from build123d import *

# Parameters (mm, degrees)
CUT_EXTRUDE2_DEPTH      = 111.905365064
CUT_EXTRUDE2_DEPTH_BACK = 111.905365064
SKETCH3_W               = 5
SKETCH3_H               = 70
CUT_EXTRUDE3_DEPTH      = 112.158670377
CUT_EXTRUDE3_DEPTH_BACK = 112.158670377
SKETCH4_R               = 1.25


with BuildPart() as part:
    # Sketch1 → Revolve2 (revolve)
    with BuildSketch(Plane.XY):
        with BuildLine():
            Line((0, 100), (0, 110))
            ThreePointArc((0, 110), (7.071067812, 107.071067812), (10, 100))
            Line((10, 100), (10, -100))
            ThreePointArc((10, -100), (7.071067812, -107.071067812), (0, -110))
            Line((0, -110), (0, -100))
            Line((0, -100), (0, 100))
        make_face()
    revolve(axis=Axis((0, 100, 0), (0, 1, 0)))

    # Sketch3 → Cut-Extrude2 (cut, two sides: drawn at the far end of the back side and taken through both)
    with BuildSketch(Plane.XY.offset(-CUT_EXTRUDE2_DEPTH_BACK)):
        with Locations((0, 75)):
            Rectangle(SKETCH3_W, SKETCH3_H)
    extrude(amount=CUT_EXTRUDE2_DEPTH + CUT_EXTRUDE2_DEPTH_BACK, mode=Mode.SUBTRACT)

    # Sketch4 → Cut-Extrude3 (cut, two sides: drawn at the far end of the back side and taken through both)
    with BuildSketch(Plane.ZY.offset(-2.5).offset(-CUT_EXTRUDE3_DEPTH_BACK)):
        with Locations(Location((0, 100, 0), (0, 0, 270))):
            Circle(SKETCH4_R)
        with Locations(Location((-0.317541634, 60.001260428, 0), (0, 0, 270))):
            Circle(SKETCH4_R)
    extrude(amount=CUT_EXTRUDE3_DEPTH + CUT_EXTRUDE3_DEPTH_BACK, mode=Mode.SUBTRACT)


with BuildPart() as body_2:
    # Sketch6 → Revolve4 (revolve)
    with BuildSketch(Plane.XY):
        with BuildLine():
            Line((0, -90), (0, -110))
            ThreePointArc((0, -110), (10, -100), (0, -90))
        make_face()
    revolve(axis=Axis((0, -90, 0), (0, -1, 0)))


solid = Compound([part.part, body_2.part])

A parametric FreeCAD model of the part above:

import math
import FreeCAD as App
import Part
import Sketcher

V = App.Vector


def add_polygon(sketch, points):
    """Adds a closed chain of lines whose ends are joined by coincident constraints."""
    first, n = sketch.GeometryCount, len(points)
    for a, b in zip(points, points[1:] + points[:1]):
        sketch.addGeometry(Part.LineSegment(App.Vector(*a, 0), App.Vector(*b, 0)), False)
    for i in range(n):
        sketch.addConstraint(Sketcher.Constraint("Coincident", first + i, 2, first + (i + 1) % n, 1))

doc = App.newDocument("Part")
body = doc.addObject("PartDesign::Body", "Body")

sketch1 = body.newObject("Sketcher::SketchObject", "Sketch")
sketch1.AttachmentSupport = (doc.getObject("XY_Plane"), [""])
sketch1.MapMode = "FlatFace"
sketch1.addGeometry([
    Part.ArcOfCircle(Part.Circle(V(0, 100, 0), V(0, 0, 1), 10), math.radians(0), math.radians(90)),
    Part.LineSegment(V(0, 110, 0), V(0, -110, 0)),
    Part.ArcOfCircle(Part.Circle(V(0, -100, 0), V(0, 0, 1), 10), math.radians(-90), math.radians(0)),
    Part.LineSegment(V(10, -100, 0), V(10, 100, 0)),
], False)
sketch1.addConstraint([
    Sketcher.Constraint("Coincident", 0, 2, 1, 1),
    Sketcher.Constraint("Coincident", 1, 2, 2, 1),
    Sketcher.Constraint("Tangent", 2, 2, 3, 1),
    Sketcher.Constraint("Tangent", 3, 2, 0, 1),
    Sketcher.Constraint("Vertical", 1),
    Sketcher.Constraint("Vertical", 3),
    Sketcher.Constraint("Equal", 0, 2),
    Sketcher.Constraint("Symmetric", 0, 3, 2, 3, -1, 1),
    Sketcher.Constraint("PointOnObject", 0, 2, -2),
    Sketcher.Constraint("Radius", 0, 10.0),
    Sketcher.Constraint("DistanceY", 1, 2, 1, 1, 220.0),
])
revolution = body.newObject("PartDesign::Revolution", "Revolution")
revolution.Profile = sketch1
revolution.ReferenceAxis = (sketch1, ["V_Axis"])
revolution.Angle = 360

sketch2 = body.newObject("Sketcher::SketchObject", "Sketch001")
sketch2.AttachmentSupport = (doc.getObject("XY_Plane"), [""])
sketch2.MapMode = "FlatFace"
add_polygon(sketch2, [(-2, 110), (-2, 40), (2, 40), (2, 110)])
sketch2.addConstraint([
    Sketcher.Constraint("Vertical", 0),
    Sketcher.Constraint("Horizontal", 1),
    Sketcher.Constraint("Vertical", 2),
    Sketcher.Constraint("Horizontal", 3),
    Sketcher.Constraint("DistanceX", 1, 1, 1, 2, 5.0),
    Sketcher.Constraint("DistanceY", 0, 2, 0, 1, 70.0),
    Sketcher.Constraint("DistanceY", -1, 1, 0, 2, 40.0),
    Sketcher.Constraint("DistanceX", 0, 2, -1, 1, 2.5),
])
pocket1 = body.newObject("PartDesign::Pocket", "Pocket")
pocket1.Profile = sketch2
pocket1.Type = "ThroughAll"
pocket1.Midplane = True

sketch3 = body.newObject("Sketcher::SketchObject", "Sketch002")
sketch3.AttachmentSupport = (doc.getObject("YZ_Plane"), [""])
sketch3.MapMode = "FlatFace"
sketch3.AttachmentOffset = App.Placement(V(0, 0, 2.5), App.Rotation())
sketch3.addGeometry([
    Part.Circle(V(100, 0, 0), V(0, 0, 1), 1.2),
    Part.Circle(V(60, -0.3, 0), V(0, 0, 1), 1.2),
], False)
sketch3.addConstraint([
    Sketcher.Constraint("Equal", 0, 1),
    Sketcher.Constraint("PointOnObject", 0, 3, -1),
    Sketcher.Constraint("Diameter", 0, 2.5),
    Sketcher.Constraint("DistanceX", -1, 1, 0, 3, 100.0),
    Sketcher.Constraint("DistanceX", -1, 1, 1, 3, 60.00126),
    Sketcher.Constraint("DistanceY", 1, 3, -1, 1, 0.317542),
])
pocket2 = body.newObject("PartDesign::Pocket", "Pocket001")
pocket2.Profile = sketch3
pocket2.Type = "ThroughAll"
pocket2.Midplane = True
body2 = doc.addObject("PartDesign::Body", "Body001")

sketch4 = body2.newObject("Sketcher::SketchObject", "Sketch003")
sketch4.AttachmentSupport = (doc.getObject("XY_Plane001"), [""])
sketch4.MapMode = "FlatFace"
sketch4.addGeometry([
    Part.LineSegment(V(0, -90, 0), V(0, -110, 0)),
    Part.ArcOfCircle(Part.Circle(V(0, -100, 0), V(0, 0, 1), 10), math.radians(-90), math.radians(90)),
], False)
sketch4.addConstraint([
    Sketcher.Constraint("Coincident", 0, 1, 1, 2),
    Sketcher.Constraint("Coincident", 1, 1, 0, 2),
    Sketcher.Constraint("Vertical", 0),
    Sketcher.Constraint("PointOnObject", 1, 3, -2),
    Sketcher.Constraint("PointOnObject", 0, 1, -2),
    Sketcher.Constraint("Radius", 1, 10.0),
    Sketcher.Constraint("DistanceY", 1, 3, -1, 1, 100.0),
])
revolution2 = body2.newObject("PartDesign::Revolution", "Revolution001")
revolution2.Profile = sketch4
revolution2.ReferenceAxis = (sketch4, ["V_Axis"])
revolution2.Angle = 360

doc.recompute()
